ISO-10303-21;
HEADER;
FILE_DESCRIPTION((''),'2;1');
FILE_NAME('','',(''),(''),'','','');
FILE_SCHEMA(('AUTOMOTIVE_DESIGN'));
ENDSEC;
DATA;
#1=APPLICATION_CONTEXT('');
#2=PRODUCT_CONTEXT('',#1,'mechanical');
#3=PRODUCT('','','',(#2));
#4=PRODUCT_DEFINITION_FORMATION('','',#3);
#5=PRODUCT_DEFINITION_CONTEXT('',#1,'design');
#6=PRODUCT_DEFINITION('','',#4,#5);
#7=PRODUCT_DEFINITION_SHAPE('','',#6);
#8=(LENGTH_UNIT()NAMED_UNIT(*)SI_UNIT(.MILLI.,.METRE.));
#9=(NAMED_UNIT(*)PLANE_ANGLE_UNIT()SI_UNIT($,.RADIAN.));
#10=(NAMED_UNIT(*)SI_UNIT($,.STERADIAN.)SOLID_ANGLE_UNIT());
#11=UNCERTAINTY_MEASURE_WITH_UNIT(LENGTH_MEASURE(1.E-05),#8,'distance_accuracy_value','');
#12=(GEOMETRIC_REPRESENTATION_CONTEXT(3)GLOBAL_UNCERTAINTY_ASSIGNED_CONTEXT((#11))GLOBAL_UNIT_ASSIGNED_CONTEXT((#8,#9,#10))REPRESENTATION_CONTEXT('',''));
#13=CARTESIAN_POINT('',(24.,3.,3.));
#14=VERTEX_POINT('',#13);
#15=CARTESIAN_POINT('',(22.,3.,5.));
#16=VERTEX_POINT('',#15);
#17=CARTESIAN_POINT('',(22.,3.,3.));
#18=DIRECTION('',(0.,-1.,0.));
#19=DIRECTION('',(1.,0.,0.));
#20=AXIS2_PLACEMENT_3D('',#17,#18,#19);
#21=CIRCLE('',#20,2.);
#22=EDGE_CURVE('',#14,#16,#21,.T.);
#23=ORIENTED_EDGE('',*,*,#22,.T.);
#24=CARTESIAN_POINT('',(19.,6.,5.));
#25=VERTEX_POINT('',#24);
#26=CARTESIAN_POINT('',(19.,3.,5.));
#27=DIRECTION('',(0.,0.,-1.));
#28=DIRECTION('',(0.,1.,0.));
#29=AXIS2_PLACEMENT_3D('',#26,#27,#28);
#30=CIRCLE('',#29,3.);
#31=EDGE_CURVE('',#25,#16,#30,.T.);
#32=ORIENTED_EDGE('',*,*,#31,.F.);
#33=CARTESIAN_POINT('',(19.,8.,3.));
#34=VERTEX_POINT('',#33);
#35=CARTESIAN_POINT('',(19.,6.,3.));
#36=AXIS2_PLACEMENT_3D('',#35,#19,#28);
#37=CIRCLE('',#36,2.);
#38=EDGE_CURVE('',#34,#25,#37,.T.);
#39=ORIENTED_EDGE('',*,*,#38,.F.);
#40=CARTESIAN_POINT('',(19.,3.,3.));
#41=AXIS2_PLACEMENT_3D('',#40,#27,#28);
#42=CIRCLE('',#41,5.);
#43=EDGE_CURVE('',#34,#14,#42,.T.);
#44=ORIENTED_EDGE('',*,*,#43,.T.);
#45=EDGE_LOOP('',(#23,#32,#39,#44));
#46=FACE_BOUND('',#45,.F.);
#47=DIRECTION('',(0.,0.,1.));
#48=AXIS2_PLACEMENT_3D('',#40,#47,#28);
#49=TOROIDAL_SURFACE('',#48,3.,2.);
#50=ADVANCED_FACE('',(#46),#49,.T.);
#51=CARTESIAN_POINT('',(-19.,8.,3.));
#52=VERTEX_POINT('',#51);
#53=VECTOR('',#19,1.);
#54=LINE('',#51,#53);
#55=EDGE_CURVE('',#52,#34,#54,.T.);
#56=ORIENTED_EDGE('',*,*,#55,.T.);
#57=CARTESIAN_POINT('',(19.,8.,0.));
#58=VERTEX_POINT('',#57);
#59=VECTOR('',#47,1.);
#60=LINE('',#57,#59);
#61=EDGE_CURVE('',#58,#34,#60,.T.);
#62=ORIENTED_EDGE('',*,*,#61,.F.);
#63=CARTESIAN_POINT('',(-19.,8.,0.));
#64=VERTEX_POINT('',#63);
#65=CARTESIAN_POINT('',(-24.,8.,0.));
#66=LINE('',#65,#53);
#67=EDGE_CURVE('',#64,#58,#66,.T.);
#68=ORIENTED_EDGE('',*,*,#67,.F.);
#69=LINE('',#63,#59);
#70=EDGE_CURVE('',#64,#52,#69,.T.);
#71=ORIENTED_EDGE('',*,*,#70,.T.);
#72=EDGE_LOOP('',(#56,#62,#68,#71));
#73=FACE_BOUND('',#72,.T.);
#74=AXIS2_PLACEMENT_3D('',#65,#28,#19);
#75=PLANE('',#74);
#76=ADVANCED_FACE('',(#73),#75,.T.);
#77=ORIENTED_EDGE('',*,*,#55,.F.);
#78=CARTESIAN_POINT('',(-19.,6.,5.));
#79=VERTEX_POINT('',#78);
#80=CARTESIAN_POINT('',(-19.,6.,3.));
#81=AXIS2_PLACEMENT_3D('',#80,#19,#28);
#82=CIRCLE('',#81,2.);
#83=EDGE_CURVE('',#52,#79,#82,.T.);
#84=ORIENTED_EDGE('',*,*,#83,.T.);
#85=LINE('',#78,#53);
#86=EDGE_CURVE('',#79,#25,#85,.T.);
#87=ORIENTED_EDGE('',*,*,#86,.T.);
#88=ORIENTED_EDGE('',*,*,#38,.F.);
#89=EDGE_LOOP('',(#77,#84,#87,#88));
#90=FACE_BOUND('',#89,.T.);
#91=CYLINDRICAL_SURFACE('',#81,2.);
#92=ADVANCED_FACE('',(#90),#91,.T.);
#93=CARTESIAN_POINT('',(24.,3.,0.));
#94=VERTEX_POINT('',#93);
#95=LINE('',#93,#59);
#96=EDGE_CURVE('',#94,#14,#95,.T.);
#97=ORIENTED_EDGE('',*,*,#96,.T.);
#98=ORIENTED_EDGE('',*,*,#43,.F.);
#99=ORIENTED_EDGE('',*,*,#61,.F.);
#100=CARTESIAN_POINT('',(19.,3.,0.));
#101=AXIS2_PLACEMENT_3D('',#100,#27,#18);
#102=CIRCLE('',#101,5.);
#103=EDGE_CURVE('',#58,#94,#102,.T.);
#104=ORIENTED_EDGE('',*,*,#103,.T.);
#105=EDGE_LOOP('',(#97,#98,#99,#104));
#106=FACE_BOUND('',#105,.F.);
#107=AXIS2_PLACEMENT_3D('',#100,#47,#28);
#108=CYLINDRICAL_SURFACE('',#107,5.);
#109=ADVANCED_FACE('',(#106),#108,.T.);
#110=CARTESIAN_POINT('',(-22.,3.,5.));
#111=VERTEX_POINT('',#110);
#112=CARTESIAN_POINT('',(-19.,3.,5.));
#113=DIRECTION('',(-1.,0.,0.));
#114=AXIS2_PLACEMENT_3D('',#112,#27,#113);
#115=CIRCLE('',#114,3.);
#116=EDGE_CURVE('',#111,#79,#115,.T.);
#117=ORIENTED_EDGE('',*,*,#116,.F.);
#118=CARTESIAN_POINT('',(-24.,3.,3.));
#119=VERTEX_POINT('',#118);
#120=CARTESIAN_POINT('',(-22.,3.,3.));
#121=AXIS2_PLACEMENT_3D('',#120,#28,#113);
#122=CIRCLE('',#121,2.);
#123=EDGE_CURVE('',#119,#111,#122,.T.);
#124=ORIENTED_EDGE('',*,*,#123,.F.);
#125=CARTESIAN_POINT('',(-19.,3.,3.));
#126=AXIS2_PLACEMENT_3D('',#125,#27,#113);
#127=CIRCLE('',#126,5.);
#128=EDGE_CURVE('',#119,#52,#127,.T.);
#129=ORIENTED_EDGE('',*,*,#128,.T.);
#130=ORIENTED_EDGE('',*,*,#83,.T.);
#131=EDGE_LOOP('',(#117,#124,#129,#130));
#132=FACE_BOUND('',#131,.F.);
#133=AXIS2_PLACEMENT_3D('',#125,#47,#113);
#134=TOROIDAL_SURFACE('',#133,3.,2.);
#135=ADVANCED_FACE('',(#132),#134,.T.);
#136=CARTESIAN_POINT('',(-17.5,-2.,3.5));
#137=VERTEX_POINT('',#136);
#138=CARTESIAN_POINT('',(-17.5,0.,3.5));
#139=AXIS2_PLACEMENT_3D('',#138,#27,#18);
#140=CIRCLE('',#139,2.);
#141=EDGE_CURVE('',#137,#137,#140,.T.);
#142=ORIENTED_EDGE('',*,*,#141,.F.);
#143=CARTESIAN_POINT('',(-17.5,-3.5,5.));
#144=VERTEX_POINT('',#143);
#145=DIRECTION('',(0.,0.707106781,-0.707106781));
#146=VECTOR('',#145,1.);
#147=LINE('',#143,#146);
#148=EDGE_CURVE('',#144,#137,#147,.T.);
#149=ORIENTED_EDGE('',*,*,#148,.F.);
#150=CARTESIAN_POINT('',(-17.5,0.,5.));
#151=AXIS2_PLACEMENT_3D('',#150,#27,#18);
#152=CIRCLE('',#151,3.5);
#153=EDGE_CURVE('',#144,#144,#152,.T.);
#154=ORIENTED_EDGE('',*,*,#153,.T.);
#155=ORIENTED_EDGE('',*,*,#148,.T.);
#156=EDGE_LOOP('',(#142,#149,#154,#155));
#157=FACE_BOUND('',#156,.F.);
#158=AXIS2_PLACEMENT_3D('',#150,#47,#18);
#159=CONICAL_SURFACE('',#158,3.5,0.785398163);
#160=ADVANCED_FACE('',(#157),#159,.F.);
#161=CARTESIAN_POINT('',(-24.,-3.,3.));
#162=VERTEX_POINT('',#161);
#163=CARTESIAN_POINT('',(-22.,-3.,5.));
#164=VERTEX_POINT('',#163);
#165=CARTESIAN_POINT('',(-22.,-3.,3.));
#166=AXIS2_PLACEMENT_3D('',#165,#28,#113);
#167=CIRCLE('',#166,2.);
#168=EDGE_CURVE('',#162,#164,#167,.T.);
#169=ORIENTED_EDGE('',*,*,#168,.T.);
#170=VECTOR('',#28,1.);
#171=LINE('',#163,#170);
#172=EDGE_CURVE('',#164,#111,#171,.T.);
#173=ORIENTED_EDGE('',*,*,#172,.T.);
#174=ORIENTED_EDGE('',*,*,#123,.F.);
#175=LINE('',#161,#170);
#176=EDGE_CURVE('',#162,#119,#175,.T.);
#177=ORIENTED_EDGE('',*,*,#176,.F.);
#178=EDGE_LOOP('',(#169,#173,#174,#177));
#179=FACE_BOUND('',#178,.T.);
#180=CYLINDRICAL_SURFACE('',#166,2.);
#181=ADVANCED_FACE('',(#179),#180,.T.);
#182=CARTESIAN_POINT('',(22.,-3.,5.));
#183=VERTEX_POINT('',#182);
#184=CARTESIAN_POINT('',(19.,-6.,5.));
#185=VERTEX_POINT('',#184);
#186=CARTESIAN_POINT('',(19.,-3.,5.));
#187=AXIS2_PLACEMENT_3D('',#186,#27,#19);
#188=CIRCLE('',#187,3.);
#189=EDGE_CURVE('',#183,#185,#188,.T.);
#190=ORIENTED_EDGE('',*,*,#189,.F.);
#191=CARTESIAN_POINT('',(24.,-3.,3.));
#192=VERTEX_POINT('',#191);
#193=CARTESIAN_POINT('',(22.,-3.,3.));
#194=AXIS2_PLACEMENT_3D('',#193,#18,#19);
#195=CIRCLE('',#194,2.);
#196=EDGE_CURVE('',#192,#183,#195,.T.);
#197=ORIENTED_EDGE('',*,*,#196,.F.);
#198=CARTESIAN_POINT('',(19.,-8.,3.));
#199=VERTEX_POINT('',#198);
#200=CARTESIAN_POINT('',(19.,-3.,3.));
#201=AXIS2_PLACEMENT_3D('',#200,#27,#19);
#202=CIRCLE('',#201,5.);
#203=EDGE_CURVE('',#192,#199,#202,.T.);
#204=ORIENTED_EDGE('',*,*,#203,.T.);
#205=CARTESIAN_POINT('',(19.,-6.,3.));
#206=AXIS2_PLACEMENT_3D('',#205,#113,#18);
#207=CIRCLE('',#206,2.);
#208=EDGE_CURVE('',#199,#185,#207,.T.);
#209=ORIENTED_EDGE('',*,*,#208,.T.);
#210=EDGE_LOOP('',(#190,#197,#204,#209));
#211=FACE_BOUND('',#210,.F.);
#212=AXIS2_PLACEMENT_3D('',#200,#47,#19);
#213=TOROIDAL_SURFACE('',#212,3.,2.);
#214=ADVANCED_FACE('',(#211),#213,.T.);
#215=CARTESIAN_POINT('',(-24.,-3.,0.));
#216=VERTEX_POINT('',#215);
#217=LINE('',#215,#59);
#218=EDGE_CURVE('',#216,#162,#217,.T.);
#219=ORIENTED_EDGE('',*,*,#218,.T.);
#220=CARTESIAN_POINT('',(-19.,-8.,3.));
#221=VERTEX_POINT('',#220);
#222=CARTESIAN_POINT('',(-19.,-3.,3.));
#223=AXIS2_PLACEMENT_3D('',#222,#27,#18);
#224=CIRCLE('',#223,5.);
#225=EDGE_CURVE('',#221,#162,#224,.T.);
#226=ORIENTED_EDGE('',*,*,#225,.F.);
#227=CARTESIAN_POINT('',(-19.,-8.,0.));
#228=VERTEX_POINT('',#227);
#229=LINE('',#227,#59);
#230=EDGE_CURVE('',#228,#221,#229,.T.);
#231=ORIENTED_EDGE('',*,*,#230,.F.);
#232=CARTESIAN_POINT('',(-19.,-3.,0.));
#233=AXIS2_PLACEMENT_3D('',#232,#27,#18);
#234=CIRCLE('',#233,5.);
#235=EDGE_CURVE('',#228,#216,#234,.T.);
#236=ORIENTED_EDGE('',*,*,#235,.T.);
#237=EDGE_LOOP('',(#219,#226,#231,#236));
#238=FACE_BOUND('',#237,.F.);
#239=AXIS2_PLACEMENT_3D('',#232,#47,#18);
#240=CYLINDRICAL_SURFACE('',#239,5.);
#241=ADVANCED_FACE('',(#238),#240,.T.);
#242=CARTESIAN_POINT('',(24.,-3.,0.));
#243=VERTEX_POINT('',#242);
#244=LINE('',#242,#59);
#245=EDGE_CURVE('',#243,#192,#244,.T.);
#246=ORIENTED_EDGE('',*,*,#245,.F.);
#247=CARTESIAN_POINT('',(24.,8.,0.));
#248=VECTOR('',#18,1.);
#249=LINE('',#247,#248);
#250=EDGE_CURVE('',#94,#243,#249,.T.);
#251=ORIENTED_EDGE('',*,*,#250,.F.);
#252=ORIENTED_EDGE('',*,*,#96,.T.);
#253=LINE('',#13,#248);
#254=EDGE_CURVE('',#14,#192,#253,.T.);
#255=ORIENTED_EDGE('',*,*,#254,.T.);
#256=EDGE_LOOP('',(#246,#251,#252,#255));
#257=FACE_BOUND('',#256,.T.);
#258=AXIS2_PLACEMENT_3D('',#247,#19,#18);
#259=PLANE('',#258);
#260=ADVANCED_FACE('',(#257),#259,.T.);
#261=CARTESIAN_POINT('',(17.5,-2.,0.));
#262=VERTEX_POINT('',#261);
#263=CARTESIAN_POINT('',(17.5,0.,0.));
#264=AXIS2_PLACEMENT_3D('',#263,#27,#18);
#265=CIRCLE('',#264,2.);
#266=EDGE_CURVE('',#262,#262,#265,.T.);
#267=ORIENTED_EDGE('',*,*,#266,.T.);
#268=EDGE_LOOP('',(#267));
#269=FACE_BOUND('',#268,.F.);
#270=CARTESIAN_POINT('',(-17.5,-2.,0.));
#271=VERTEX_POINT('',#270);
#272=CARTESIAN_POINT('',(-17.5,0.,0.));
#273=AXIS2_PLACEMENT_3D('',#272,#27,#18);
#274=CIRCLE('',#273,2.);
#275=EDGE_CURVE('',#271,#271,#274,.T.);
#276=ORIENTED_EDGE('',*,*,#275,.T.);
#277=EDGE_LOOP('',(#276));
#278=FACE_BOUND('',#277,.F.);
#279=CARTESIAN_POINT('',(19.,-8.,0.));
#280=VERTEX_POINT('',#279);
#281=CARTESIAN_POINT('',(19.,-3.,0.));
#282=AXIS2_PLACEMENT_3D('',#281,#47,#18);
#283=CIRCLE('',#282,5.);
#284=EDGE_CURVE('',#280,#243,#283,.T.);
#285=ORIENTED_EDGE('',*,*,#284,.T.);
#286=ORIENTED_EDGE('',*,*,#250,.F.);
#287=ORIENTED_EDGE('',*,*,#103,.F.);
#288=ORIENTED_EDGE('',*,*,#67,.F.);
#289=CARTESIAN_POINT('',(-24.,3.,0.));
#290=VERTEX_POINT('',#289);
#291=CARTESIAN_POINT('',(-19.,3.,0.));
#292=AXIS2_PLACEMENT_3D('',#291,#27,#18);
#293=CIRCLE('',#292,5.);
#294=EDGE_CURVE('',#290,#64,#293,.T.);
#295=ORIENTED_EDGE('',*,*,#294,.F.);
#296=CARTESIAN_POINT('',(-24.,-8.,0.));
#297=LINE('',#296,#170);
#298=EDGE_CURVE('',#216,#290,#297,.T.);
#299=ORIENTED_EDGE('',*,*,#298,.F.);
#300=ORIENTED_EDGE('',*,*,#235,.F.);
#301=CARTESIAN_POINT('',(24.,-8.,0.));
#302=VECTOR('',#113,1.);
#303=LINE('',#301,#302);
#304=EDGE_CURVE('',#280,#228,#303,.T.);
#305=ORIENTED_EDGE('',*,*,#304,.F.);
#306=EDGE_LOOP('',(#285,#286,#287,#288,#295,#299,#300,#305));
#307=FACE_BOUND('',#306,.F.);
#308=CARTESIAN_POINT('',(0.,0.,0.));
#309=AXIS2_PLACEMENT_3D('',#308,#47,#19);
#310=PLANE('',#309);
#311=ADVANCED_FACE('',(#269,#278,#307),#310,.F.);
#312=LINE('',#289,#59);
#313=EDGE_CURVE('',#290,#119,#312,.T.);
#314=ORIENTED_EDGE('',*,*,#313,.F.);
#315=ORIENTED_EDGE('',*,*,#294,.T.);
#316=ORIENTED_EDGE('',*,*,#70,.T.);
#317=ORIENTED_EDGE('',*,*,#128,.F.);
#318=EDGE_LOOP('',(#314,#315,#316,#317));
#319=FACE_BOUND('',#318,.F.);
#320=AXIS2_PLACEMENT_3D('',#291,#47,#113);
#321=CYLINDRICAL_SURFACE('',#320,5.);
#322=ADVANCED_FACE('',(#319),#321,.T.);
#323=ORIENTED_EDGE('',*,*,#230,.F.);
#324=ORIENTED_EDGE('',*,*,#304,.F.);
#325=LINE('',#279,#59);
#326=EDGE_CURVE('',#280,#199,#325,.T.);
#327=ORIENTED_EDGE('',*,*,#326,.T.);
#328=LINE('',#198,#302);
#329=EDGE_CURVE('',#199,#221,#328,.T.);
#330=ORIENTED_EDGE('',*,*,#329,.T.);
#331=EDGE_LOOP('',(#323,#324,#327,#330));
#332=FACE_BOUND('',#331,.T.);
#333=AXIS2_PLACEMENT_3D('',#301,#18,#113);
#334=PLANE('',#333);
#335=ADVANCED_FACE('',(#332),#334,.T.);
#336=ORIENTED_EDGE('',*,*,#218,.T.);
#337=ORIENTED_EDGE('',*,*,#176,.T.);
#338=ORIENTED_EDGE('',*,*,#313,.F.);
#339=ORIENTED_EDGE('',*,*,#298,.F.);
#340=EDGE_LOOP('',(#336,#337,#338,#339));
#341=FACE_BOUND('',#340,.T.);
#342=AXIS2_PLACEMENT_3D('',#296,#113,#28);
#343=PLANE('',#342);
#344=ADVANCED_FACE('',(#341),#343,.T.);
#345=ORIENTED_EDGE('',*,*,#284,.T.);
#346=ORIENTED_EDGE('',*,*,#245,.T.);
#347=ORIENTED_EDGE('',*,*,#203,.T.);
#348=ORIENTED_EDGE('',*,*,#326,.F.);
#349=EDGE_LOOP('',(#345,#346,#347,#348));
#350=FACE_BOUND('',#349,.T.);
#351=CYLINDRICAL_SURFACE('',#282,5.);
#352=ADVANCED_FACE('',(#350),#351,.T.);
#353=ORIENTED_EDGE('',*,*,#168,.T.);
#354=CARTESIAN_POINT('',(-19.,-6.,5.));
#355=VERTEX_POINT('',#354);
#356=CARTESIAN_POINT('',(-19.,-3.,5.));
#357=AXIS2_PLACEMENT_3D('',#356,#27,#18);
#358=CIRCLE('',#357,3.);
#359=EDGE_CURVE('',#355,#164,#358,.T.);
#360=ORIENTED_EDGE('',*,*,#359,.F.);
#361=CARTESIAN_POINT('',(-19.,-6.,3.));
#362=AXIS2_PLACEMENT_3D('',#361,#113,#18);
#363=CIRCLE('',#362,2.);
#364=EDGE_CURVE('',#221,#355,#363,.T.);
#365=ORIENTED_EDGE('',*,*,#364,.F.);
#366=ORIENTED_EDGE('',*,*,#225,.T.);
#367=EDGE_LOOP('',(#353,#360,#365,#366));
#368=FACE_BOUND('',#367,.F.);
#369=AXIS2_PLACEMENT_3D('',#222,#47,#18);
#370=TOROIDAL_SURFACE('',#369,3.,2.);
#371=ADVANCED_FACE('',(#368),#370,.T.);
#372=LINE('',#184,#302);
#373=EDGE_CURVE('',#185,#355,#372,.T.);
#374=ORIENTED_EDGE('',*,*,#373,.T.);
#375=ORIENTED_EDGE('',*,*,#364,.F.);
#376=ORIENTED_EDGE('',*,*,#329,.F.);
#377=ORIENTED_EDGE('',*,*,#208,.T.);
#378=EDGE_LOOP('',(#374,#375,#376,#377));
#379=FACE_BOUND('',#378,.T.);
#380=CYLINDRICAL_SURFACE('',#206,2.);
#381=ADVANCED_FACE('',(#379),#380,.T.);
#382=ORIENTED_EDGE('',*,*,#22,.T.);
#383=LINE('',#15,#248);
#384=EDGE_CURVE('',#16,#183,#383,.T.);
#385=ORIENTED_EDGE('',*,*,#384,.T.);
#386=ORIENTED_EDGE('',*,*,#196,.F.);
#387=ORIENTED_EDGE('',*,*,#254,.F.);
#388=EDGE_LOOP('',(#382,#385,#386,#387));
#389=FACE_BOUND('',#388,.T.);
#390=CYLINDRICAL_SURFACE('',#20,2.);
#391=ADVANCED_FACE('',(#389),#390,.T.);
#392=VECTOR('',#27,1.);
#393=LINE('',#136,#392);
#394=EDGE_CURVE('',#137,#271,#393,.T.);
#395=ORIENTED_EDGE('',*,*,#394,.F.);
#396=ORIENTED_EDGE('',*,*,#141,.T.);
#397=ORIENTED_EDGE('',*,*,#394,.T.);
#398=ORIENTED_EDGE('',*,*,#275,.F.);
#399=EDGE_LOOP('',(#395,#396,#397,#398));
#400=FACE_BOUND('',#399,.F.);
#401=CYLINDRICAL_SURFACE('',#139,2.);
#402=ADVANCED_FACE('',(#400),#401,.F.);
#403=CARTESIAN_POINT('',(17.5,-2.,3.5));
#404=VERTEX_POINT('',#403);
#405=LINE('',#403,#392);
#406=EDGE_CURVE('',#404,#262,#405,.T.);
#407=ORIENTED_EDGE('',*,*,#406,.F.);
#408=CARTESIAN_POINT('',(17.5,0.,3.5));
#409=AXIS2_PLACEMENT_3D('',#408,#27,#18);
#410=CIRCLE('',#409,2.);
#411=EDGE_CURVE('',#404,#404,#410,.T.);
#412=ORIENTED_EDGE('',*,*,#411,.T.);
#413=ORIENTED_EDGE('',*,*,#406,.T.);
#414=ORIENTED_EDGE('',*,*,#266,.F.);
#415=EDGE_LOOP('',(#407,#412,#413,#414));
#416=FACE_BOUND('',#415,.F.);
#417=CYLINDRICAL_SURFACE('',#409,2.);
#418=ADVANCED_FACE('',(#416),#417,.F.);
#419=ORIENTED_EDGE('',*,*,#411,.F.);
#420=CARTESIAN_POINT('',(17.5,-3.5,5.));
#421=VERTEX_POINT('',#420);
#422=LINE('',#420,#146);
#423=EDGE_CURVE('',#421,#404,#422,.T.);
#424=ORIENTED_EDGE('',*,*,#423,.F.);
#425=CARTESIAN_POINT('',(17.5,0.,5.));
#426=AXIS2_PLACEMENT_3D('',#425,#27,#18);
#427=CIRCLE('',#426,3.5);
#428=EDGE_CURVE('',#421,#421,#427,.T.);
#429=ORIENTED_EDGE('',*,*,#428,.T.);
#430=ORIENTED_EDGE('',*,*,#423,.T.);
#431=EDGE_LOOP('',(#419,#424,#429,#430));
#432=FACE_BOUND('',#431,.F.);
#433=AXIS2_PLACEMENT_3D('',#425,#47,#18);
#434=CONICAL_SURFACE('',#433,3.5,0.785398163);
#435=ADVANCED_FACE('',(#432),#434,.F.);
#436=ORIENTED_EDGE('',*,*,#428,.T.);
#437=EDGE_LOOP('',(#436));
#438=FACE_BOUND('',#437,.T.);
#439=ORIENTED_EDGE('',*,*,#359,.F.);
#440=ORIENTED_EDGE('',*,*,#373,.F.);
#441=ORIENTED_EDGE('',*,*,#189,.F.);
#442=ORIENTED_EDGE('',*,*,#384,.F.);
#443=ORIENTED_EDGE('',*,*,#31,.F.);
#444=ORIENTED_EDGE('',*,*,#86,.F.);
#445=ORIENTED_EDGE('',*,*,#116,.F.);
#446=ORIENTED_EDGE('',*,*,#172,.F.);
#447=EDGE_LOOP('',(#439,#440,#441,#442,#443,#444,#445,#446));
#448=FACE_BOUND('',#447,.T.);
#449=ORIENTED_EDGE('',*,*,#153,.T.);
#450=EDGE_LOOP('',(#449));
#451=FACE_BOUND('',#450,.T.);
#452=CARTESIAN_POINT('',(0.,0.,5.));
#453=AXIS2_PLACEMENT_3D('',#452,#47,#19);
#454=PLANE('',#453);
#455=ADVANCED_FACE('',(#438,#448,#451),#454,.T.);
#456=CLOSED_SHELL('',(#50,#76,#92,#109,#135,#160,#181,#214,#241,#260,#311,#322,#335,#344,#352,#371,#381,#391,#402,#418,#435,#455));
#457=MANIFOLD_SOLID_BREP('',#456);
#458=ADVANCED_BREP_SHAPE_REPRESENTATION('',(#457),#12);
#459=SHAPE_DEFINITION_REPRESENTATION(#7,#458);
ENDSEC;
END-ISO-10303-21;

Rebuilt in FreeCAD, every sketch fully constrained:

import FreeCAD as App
import Part
import Sketcher

V = App.Vector
Q = App.Units.Quantity


def edges_at(feature, points):
    """Names of the edges that pass closest to the given points."""
    edges = feature.Shape.Edges
    near = lambda p: min(range(len(edges)), key=lambda i: edges[i].distToShape(Part.Vertex(*p))[0])
    return sorted({f"Edge{near(p) + 1}" for p in points})

doc = App.newDocument("Part")
params = doc.addObject("Spreadsheet::Sheet", "Params")
for row, (alias, value) in enumerate([
    ("sketch1_width", "48 mm"),
    ("sketch1_height", "16 mm"),
    ("pad1_length", "5 mm"),
    ("fillet_radius", "5 mm"),
    ("fillet2_radius", "2 mm"),
    ("sketch2_diameter", "4 mm"),
    ("hole_diameter", "4 mm"),
    ("hole_csink_diameter", "7 mm"),
], start=1):
    params.set(f"A{row}", alias)
    params.set(f"B{row}", "=" + value)
    params.setAlias(f"B{row}", alias)

body = doc.addObject("PartDesign::Body", "Body")

# Sketch on XY plane
sketch1 = body.newObject("Sketcher::SketchObject", "Sketch")
sketch1.AttachmentSupport = (doc.getObject("XY_Plane"), [""])
sketch1.MapMode = "FlatFace"
sketch1.addGeometry([
    Part.LineSegment(V(-24, -8, 0), V(24, -8, 0)),
    Part.LineSegment(V(24, -8, 0), V(24, 8, 0)),
    Part.LineSegment(V(24, 8, 0), V(-24, 8, 0)),
    Part.LineSegment(V(-24, 8, 0), V(-24, -8, 0)),
], False)
sketch1.addConstraint([
    Sketcher.Constraint("Coincident", 0, 2, 1, 1),
    Sketcher.Constraint("Coincident", 1, 2, 2, 1),
    Sketcher.Constraint("Coincident", 2, 2, 3, 1),
    Sketcher.Constraint("Coincident", 3, 2, 0, 1),
    Sketcher.Constraint("Horizontal", 0),
    Sketcher.Constraint("Vertical", 1),
    Sketcher.Constraint("Horizontal", 2),
    Sketcher.Constraint("Vertical", 3),
    Sketcher.Constraint("Symmetric", 0, 2, 2, 2, -1, 1),
    Sketcher.Constraint("DistanceX", 0, 1, 0, 2, Q("48 mm")),
    Sketcher.Constraint("DistanceY", 1, 1, 1, 2, Q("16 mm")),
])
sketch1.setExpression("Constraints[9]", "Params.sketch1_width")
sketch1.setExpression("Constraints[10]", "Params.sketch1_height")
pad1 = body.newObject("PartDesign::Pad", "Pad")
pad1.Profile = sketch1
pad1.setExpression("Length", "Params.pad1_length")
doc.recompute()

fillet = body.newObject("PartDesign::Fillet", "Fillet")
fillet.Base = (pad1, edges_at(pad1, [
    (-24, -8, 2.5),
    (-24, 8, 2.5),
    (24, -8, 2.5),
    (24, 8, 2.5),
]))
fillet.setExpression("Radius", "Params.fillet_radius")
doc.recompute()

fillet2 = body.newObject("PartDesign::Fillet", "Fillet001")
fillet2.Base = (fillet, edges_at(fillet, [
    (0, -8, 5),
    (-22.535, -6.535, 5),
    (-24, 0, 5),
    (-22.535, 6.535, 5),
    (0, 8, 5),
    (22.535, 6.535, 5),
    (24, 0, 5),
    (22.535, -6.535, 5),
]))
fillet2.setExpression("Radius", "Params.fillet2_radius")

# Sketch on XY plane
sketch2 = body.newObject("Sketcher::SketchObject", "Sketch001")
sketch2.AttachmentSupport = (doc.getObject("XY_Plane"), [""])
sketch2.MapMode = "FlatFace"
sketch2.AttachmentOffset = App.Placement(V(0, 0, 5), App.Rotation())
sketch2.addGeometry([
    Part.Circle(V(-17.5, 0, 0), V(0, 0, 1), 2),
    Part.Circle(V(17.5, 0, 0), V(0, 0, 1), 2),
], False)
sketch2.addConstraint([
    Sketcher.Constraint("Equal", 0, 1),
    Sketcher.Constraint("Symmetric", 0, 3, 1, 3, -1, 1),
    Sketcher.Constraint("PointOnObject", 0, 3, -1),
    Sketcher.Constraint("Diameter", 0, Q("4 mm")),
    Sketcher.Constraint("DistanceX", 0, 3, 1, 3, Q("35 mm")),
])
sketch2.setExpression("Constraints[3]", "Params.sketch2_diameter")
doc.recompute()
hole = body.newObject("PartDesign::Hole", "Hole")
hole.Profile = sketch2
hole.ThreadType = "None"
hole.setExpression("Diameter", "Params.hole_diameter")
hole.DepthType = "ThroughAll"
hole.HoleCutType = "Countersink"
hole.setExpression("HoleCutDiameter", "Params.hole_csink_diameter")
hole.HoleCutCountersinkAngle = 90

doc.recompute()
